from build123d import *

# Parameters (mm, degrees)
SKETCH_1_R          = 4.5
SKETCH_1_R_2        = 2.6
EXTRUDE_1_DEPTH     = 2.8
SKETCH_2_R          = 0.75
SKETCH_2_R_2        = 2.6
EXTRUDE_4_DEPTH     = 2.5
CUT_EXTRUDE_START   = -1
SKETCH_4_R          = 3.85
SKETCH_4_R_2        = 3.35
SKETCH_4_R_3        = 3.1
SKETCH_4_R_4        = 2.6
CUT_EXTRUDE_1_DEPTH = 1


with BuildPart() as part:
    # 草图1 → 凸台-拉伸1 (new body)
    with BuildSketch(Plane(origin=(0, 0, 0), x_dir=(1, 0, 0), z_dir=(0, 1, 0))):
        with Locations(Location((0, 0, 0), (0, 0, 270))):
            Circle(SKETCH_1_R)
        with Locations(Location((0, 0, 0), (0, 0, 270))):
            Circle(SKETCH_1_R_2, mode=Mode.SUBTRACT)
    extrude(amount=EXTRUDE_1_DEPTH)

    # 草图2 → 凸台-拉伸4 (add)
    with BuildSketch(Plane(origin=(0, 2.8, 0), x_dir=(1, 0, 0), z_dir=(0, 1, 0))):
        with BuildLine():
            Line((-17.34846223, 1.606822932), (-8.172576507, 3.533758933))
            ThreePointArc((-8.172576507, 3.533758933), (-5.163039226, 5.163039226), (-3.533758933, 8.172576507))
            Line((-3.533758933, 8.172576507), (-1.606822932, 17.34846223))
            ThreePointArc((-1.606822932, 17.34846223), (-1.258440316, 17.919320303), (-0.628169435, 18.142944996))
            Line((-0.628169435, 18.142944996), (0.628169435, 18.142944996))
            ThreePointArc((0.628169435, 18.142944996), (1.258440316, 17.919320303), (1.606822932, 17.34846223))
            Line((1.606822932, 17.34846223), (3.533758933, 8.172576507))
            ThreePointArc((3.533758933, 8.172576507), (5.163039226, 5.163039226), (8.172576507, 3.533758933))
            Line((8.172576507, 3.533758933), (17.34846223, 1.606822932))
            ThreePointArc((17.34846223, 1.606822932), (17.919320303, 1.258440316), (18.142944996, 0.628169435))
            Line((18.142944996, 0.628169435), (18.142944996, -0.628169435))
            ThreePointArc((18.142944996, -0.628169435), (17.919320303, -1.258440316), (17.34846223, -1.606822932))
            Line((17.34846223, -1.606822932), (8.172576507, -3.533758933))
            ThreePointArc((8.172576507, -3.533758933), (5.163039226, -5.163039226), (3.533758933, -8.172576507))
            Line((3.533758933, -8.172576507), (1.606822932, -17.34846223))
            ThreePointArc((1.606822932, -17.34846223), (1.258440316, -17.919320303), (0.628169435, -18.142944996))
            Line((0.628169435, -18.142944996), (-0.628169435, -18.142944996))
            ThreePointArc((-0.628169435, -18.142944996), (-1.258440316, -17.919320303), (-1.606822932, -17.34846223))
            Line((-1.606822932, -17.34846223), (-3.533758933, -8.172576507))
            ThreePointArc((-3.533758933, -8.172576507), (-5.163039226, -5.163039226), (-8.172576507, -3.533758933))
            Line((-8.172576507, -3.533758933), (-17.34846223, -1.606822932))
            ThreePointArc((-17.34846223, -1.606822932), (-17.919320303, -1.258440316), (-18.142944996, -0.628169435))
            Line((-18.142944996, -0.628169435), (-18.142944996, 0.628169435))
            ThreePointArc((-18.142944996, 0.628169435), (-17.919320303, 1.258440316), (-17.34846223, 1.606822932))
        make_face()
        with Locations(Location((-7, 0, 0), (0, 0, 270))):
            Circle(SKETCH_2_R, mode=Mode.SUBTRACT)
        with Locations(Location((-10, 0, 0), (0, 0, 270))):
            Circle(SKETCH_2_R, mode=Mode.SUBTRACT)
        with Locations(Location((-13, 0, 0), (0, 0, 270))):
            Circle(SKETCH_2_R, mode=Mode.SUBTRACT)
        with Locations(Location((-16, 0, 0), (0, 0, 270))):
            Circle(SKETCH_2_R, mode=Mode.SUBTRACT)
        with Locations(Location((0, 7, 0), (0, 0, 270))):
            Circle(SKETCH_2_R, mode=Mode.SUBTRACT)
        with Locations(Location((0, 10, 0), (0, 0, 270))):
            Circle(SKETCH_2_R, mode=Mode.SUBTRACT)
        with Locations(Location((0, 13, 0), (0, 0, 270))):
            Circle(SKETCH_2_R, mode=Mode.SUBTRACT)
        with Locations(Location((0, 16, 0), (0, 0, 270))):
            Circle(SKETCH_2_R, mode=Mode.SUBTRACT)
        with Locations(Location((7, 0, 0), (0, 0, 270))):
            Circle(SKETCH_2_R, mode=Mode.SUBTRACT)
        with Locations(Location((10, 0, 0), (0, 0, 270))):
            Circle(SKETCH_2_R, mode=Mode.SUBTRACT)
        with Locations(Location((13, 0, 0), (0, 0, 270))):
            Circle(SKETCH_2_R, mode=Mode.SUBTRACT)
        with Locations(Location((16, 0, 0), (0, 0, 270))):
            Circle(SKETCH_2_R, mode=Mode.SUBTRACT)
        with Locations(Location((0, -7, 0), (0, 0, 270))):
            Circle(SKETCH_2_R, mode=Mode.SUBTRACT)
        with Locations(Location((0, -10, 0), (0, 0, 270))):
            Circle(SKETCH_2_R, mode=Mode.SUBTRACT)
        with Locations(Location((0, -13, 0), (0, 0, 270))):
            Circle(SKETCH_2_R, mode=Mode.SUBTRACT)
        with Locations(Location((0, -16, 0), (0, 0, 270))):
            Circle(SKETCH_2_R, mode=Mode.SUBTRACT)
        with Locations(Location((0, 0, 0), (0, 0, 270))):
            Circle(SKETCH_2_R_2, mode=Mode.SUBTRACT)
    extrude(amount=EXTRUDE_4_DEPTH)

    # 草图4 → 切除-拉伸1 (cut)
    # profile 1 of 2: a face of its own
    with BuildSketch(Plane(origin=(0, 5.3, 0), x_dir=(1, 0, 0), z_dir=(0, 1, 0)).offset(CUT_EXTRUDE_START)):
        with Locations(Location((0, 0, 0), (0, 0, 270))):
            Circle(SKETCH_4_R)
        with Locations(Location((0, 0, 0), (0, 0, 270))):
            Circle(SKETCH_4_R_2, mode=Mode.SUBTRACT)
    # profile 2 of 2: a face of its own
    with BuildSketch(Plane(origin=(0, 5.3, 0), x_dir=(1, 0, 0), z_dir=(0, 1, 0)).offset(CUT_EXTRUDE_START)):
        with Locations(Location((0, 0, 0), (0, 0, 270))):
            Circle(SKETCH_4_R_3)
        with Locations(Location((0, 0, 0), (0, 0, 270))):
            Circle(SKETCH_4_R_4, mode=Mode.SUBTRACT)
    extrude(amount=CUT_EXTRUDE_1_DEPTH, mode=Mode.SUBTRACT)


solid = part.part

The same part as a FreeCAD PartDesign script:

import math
import FreeCAD as App
import Part
import Sketcher

doc = App.newDocument("Part")
params = doc.addObject("Spreadsheet::Sheet", "Params")
for row, (alias, value) in enumerate([
    ("sketch1_diameter", "9 mm"),
    ("sketch1_diameter2", "5.2 mm"),
    ("pad1_length", "2.8 mm"),
    ("sketch2_radius", "1 mm"),
    ("sketch2_radius2", "6 mm"),
    ("sketch2_diameter", "1.5 mm"),
    ("sketch2_diameter2", "5.2 mm"),
    ("pad2_length", "2.5 mm"),
    ("sketch3_diameter", "7.7 mm"),
    ("sketch3_diameter2", "6.7 mm"),
    ("sketch3_diameter3", "6.2 mm"),
    ("sketch3_diameter4", "5.2 mm"),
    ("pocket1_length", "1 mm"),
], start=1):
    params.set(f"A{row}", alias)
    params.set(f"B{row}", "=" + value)
    params.setAlias(f"B{row}", alias)

body = doc.addObject("PartDesign::Body", "Body")

sketch1 = body.newObject("Sketcher::SketchObject", "Sketch")
sketch1.AttachmentSupport = (doc.getObject("XZ_Plane"), [""])
sketch1.MapMode = "FlatFace"
sketch1.addGeometry([
    Part.Circle(App.Vector(0, 0, 0), App.Vector(0, 0, 1), 4.5),
    Part.Circle(App.Vector(0, 0, 0), App.Vector(0, 0, 1), 2.6),
], False)
sketch1.addConstraint([
    Sketcher.Constraint("Coincident", 0, 3, -1, 1),
    Sketcher.Constraint("Coincident", 1, 3, -1, 1),
    Sketcher.Constraint("Diameter", 0, 9.0),
    Sketcher.Constraint("Diameter", 1, 5.2),
])
sketch1.setExpression("Constraints[2]", "Params.sketch1_diameter")
sketch1.setExpression("Constraints[3]", "Params.sketch1_diameter2")
pad1 = body.newObject("PartDesign::Pad", "Pad")
pad1.Profile = sketch1
pad1.setExpression("Length", "Params.pad1_length")
pad1.Reversed = True

sketch2 = body.newObject("Sketcher::SketchObject", "Sketch001")
sketch2.AttachmentSupport = (doc.getObject("XZ_Plane"), [""])
sketch2.MapMode = "FlatFace"
sketch2.AttachmentOffset = App.Placement(App.Vector(0, 0, -2.8), App.Rotation())
sketch2.addGeometry([
    Part.LineSegment(App.Vector(-8.2, -3.5, 0), App.Vector(-17.3, -1.6, 0)),
    Part.ArcOfCircle(Part.Circle(App.Vector(-17.1, -0.6, 0), App.Vector(0, 0, 1), 1), math.radians(180), math.radians(258)),
    Part.LineSegment(App.Vector(-18.1, -0.6, 0), App.Vector(-18.1, 0.6, 0)),
    Part.ArcOfCircle(Part.Circle(App.Vector(-17.1, 0.6, 0), App.Vector(0, 0, 1), 1), math.radians(102), math.radians(180)),
    Part.LineSegment(App.Vector(-17.3, 1.6, 0), App.Vector(-8.2, 3.5, 0)),
    Part.ArcOfCircle(Part.Circle(App.Vector(-9.4, 9.4, 0), App.Vector(0, 0, 1), 6), math.radians(-78), math.radians(-12)),
    Part.LineSegment(App.Vector(-3.5, 8.2, 0), App.Vector(-1.6, 17.3, 0)),
    Part.ArcOfCircle(Part.Circle(App.Vector(-0.6, 17.1, 0), App.Vector(0, 0, 1), 1), math.radians(90), math.radians(168)),
    Part.LineSegment(App.Vector(-0.6, 18.1, 0), App.Vector(0.6, 18.1, 0)),
    Part.ArcOfCircle(Part.Circle(App.Vector(0.6, 17.1, 0), App.Vector(0, 0, 1), 1), math.radians(12), math.radians(90)),
    Part.LineSegment(App.Vector(1.6, 17.3, 0), App.Vector(3.5, 8.2, 0)),
    Part.ArcOfCircle(Part.Circle(App.Vector(9.4, 9.4, 0), App.Vector(0, 0, 1), 6), math.radians(-168), math.radians(-102)),
    Part.LineSegment(App.Vector(8.2, 3.5, 0), App.Vector(17.3, 1.6, 0)),
    Part.ArcOfCircle(Part.Circle(App.Vector(17.1, 0.6, 0), App.Vector(0, 0, 1), 1), math.radians(0), math.radians(78)),
    Part.LineSegment(App.Vector(18.1, 0.6, 0), App.Vector(18.1, -0.6, 0)),
    Part.ArcOfCircle(Part.Circle(App.Vector(17.1, -0.6, 0), App.Vector(0, 0, 1), 1), math.radians(-78), math.radians(0)),
    Part.LineSegment(App.Vector(17.3, -1.6, 0), App.Vector(8.2, -3.5, 0)),
    Part.ArcOfCircle(Part.Circle(App.Vector(9.4, -9.4, 0), App.Vector(0, 0, 1), 6), math.radians(102), math.radians(168)),
    Part.LineSegment(App.Vector(3.5, -8.2, 0), App.Vector(1.6, -17.3, 0)),
    Part.ArcOfCircle(Part.Circle(App.Vector(0.6, -17.1, 0), App.Vector(0, 0, 1), 1), math.radians(-90), math.radians(-12)),
    Part.LineSegment(App.Vector(0.6, -18.1, 0), App.Vector(-0.6, -18.1, 0)),
    Part.ArcOfCircle(Part.Circle(App.Vector(-0.6, -17.1, 0), App.Vector(0, 0, 1), 1), math.radians(-168), math.radians(-90)),
    Part.LineSegment(App.Vector(-1.6, -17.3, 0), App.Vector(-3.5, -8.2, 0)),
    Part.ArcOfCircle(Part.Circle(App.Vector(-9.4, -9.4, 0), App.Vector(0, 0, 1), 6), math.radians(12), math.radians(78)),
    Part.Circle(App.Vector(0, 16, 0), App.Vector(0, 0, 1), 0.8),
    Part.Circle(App.Vector(0, 13, 0), App.Vector(0, 0, 1), 0.8),
    Part.Circle(App.Vector(0, 10, 0), App.Vector(0, 0, 1), 0.8),
    Part.Circle(App.Vector(0, 7, 0), App.Vector(0, 0, 1), 0.8),
    Part.Circle(App.Vector(16, 0, 0), App.Vector(0, 0, 1), 0.8),
    Part.Circle(App.Vector(13, 0, 0), App.Vector(0, 0, 1), 0.8),
    Part.Circle(App.Vector(10, 0, 0), App.Vector(0, 0, 1), 0.8),
    Part.Circle(App.Vector(7, 0, 0), App.Vector(0, 0, 1), 0.8),
    Part.Circle(App.Vector(0, 0, 0), App.Vector(0, 0, 1), 2.6),
    Part.Circle(App.Vector(-7, 0, 0), App.Vector(0, 0, 1), 0.8),
    Part.Circle(App.Vector(0, -7, 0), App.Vector(0, 0, 1), 0.8),
    Part.Circle(App.Vector(-10, 0, 0), App.Vector(0, 0, 1), 0.8),
    Part.Circle(App.Vector(-13, 0, 0), App.Vector(0, 0, 1), 0.8),
    Part.Circle(App.Vector(-16, 0, 0), App.Vector(0, 0, 1), 0.8),
    Part.Circle(App.Vector(0, -10, 0), App.Vector(0, 0, 1), 0.8),
    Part.Circle(App.Vector(0, -13, 0), App.Vector(0, 0, 1), 0.8),
    Part.Circle(App.Vector(0, -16, 0), App.Vector(0, 0, 1), 0.8),
], False)
sketch2.addConstraint([
    Sketcher.Constraint("Tangent", 0, 2, 1, 2),
    Sketcher.Constraint("Tangent", 1, 1, 2, 1),
    Sketcher.Constraint("Tangent", 2, 2, 3, 2),
    Sketcher.Constraint("Tangent", 3, 1, 4, 1),
    Sketcher.Constraint("Tangent", 4, 2, 5, 1),
    Sketcher.Constraint("Tangent", 5, 2, 6, 1),
    Sketcher.Constraint("Tangent", 6, 2, 7, 2),
    Sketcher.Constraint("Tangent", 7, 1, 8, 1),
    Sketcher.Constraint("Tangent", 8, 2, 9, 2),
    Sketcher.Constraint("Tangent", 9, 1, 10, 1),
    Sketcher.Constraint("Tangent", 10, 2, 11, 1),
    Sketcher.Constraint("Tangent", 11, 2, 12, 1),
    Sketcher.Constraint("Tangent", 12, 2, 13, 2),
    Sketcher.Constraint("Tangent", 13, 1, 14, 1),
    Sketcher.Constraint("Tangent", 14, 2, 15, 2),
    Sketcher.Constraint("Tangent", 15, 1, 16, 1),
    Sketcher.Constraint("Tangent", 16, 2, 17, 1),
    Sketcher.Constraint("Tangent", 17, 2, 18, 1),
    Sketcher.Constraint("Tangent", 18, 2, 19, 2),
    Sketcher.Constraint("Tangent", 19, 1, 20, 1),
    Sketcher.Constraint("Tangent", 20, 2, 21, 2),
    Sketcher.Constraint("Tangent", 21, 1, 22, 1),
    Sketcher.Constraint("Tangent", 22, 2, 23, 1),
    Sketcher.Constraint("Tangent", 23, 2, 0, 1),
    Sketcher.Constraint("Vertical", 2),
    Sketcher.Constraint("Horizontal", 8),
    Sketcher.Constraint("Vertical", 14),
    Sketcher.Constraint("Horizontal", 20),
    Sketcher.Constraint("Coincident", 32, 3, -1, 1),
    Sketcher.Constraint("Equal", 1, 3),
    Sketcher.Constraint("Equal", 3, 7),
    Sketcher.Constraint("Equal", 7, 9),
    Sketcher.Constraint("Equal", 5, 11),
    Sketcher.Constraint("Equal", 9, 13),
    Sketcher.Constraint("Equal", 13, 15),
    Sketcher.Constraint("Equal", 11, 17),
    Sketcher.Constraint("Equal", 15, 19),
    Sketcher.Constraint("Equal", 19, 21),
    Sketcher.Constraint("Equal", 17, 23),
    Sketcher.Constraint("Equal", 24, 25),
    Sketcher.Constraint("Equal", 25, 26),
    Sketcher.Constraint("Equal", 26, 27),
    Sketcher.Constraint("Equal", 27, 28),
    Sketcher.Constraint("Equal", 28, 29),
    Sketcher.Constraint("Equal", 29, 30),
    Sketcher.Constraint("Equal", 30, 31),
    Sketcher.Constraint("Equal", 31, 33),
    Sketcher.Constraint("Equal", 33, 34),
    Sketcher.Constraint("Equal", 34, 35),
    Sketcher.Constraint("Equal", 35, 36),
    Sketcher.Constraint("Equal", 36, 37),
    Sketcher.Constraint("Equal", 37, 38),
    Sketcher.Constraint("Equal", 38, 39),
    Sketcher.Constraint("Equal", 39, 40),
    Sketcher.Constraint("Symmetric", 1, 3, 13, 3, -1, 1),
    Sketcher.Constraint("Symmetric", 5, 3, 17, 3, -1, 1),
    Sketcher.Constraint("Symmetric", 7, 3, 19, 3, -1, 1),
    Sketcher.Constraint("Symmetric", 11, 3, 23, 3, -1, 1),
    Sketcher.Constraint("Symmetric", 31, 3, 33, 3, -1, 1),
    Sketcher.Constraint("Symmetric", 27, 3, 34, 3, -1, 1),
    Sketcher.Constraint("Symmetric", 30, 3, 35, 3, -1, 1),
    Sketcher.Constraint("Symmetric", 29, 3, 36, 3, -1, 1),
    Sketcher.Constraint("Symmetric", 28, 3, 37, 3, -1, 1),
    Sketcher.Constraint("Symmetric", 26, 3, 38, 3, -1, 1),
    Sketcher.Constraint("Symmetric", 25, 3, 39, 3, -1, 1),
    Sketcher.Constraint("Symmetric", 24, 3, 40, 3, -1, 1),
    Sketcher.Constraint("Symmetric", 5, 3, 11, 3, -2),
    Sketcher.Constraint("PointOnObject", 24, 3, -2),
    Sketcher.Constraint("PointOnObject", 25, 3, -2),
    Sketcher.Constraint("PointOnObject", 26, 3, -2),
    Sketcher.Constraint("PointOnObject", 27, 3, -2),
    Sketcher.Constraint("PointOnObject", 28, 3, -1),
    Sketcher.Constraint("PointOnObject", 29, 3, -1),
    Sketcher.Constraint("PointOnObject", 30, 3, -1),
    Sketcher.Constraint("PointOnObject", 31, 3, -1),
    Sketcher.Constraint("Perpendicular", 0, 6),
    Sketcher.Constraint("Perpendicular", 4, 10),
    Sketcher.Constraint("Perpendicular", 10, 16),
    Sketcher.Constraint("Perpendicular", 16, 22),
    Sketcher.Constraint("Horizontal", 3, 3, 13, 3),
    Sketcher.Constraint("Equal", 20, 2),
    Sketcher.Constraint("Equal", 4, 6),
    Sketcher.Constraint("Radius", 1, 1.0),
    Sketcher.Constraint("Radius", 5, 6.0),
    Sketcher.Constraint("Diameter", 24, 1.5),
    Sketcher.Constraint("Diameter", 32, 5.2),
    Sketcher.Constraint("DistanceY", -1, 1, 24, 3, 16.0),
    Sketcher.Constraint("DistanceY", -1, 1, 25, 3, 13.0),
    Sketcher.Constraint("DistanceY", -1, 1, 26, 3, 10.0),
    Sketcher.Constraint("DistanceY", -1, 1, 27, 3, 7.0),
    Sketcher.Constraint("DistanceX", -1, 1, 28, 3, 16.0),
    Sketcher.Constraint("DistanceX", -1, 1, 29, 3, 13.0),
    Sketcher.Constraint("DistanceX", -1, 1, 30, 3, 10.0),
    Sketcher.Constraint("DistanceX", -1, 1, 31, 3, 7.0),
    Sketcher.Constraint("DistanceX", 8, 1, 8, 2, 1.256339),
    Sketcher.Constraint("Distance", 0, 9.376031),
    Sketcher.Constraint("DistanceX", 5, 3, -1, 1, 9.40568),
])
sketch2.setExpression("Constraints[82]", "Params.sketch2_radius")
sketch2.setExpression("Constraints[83]", "Params.sketch2_radius2")
sketch2.setExpression("Constraints[84]", "Params.sketch2_diameter")
sketch2.setExpression("Constraints[85]", "Params.sketch2_diameter2")
pad2 = body.newObject("PartDesign::Pad", "Pad001")
pad2.Profile = sketch2
pad2.setExpression("Length", "Params.pad2_length")
pad2.Reversed = True

sketch3 = body.newObject("Sketcher::SketchObject", "Sketch002")
sketch3.AttachmentSupport = (doc.getObject("XZ_Plane"), [""])
sketch3.MapMode = "FlatFace"
sketch3.AttachmentOffset = App.Placement(App.Vector(0, 0, -4.3), App.Rotation())
sketch3.addGeometry([
    Part.Circle(App.Vector(0, 0, 0), App.Vector(0, 0, 1), 3.9),
    Part.Circle(App.Vector(0, 0, 0), App.Vector(0, 0, 1), 3.4),
    Part.Circle(App.Vector(0, 0, 0), App.Vector(0, 0, 1), 3.1),
    Part.Circle(App.Vector(0, 0, 0), App.Vector(0, 0, 1), 2.6),
], False)
sketch3.addConstraint([
    Sketcher.Constraint("Coincident", 0, 3, -1, 1),
    Sketcher.Constraint("Coincident", 1, 3, -1, 1),
    Sketcher.Constraint("Coincident", 2, 3, -1, 1),
    Sketcher.Constraint("Coincident", 3, 3, -1, 1),
    Sketcher.Constraint("Diameter", 0, 7.7),
    Sketcher.Constraint("Diameter", 1, 6.7),
    Sketcher.Constraint("Diameter", 2, 6.2),
    Sketcher.Constraint("Diameter", 3, 5.2),
])
sketch3.setExpression("Constraints[4]", "Params.sketch3_diameter")
sketch3.setExpression("Constraints[5]", "Params.sketch3_diameter2")
sketch3.setExpression("Constraints[6]", "Params.sketch3_diameter3")
sketch3.setExpression("Constraints[7]", "Params.sketch3_diameter4")
pocket1 = body.newObject("PartDesign::Pocket", "Pocket")
pocket1.Profile = sketch3
pocket1.setExpression("Length", "Params.pocket1_length")

doc.recompute()
